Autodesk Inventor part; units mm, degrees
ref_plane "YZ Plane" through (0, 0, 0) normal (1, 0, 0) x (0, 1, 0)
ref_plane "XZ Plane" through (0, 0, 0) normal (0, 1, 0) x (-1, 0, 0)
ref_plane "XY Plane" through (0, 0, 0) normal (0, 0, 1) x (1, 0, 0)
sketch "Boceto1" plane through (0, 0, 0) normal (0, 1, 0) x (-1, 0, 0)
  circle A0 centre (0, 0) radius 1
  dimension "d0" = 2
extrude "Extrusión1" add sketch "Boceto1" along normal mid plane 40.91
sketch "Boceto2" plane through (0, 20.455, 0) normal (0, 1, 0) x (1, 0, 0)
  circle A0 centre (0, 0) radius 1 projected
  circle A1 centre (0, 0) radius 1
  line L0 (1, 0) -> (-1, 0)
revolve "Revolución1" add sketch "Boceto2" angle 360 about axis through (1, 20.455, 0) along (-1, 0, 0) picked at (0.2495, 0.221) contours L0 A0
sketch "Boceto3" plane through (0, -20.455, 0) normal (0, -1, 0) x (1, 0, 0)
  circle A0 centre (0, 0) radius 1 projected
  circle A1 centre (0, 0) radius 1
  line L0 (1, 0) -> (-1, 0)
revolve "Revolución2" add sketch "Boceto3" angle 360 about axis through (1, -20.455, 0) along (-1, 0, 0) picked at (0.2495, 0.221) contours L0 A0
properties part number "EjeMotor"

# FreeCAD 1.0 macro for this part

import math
import FreeCAD as App
import Part
import Sketcher
from FreeCAD import Vector

doc = App.newDocument("Part")
body = doc.addObject("PartDesign::Body", "Body")

# Sketch on XZ plane
sketch1 = doc.addObject("Sketcher::SketchObject", "Sketch")
body.addObject(sketch1)
sketch1.AttachmentSupport = (doc.XZ_Plane, [""])
sketch1.MapMode = "FlatFace"
sketch1.addGeometry(Part.Circle(Vector(0, 0, 0), Vector(0, 0, 1), 1), False)
sketch1.addConstraint(Sketcher.Constraint("Coincident", 0, 3, -1, 1))
sketch1.addConstraint(Sketcher.Constraint("Diameter", 0, 2.0))
pad1 = doc.addObject("PartDesign::Pad", "Pad")
body.addObject(pad1)
pad1.Profile = sketch1
pad1.Length = 40.91
pad1.Midplane = True

# Sketch on XZ plane
sketch2 = doc.addObject("Sketcher::SketchObject", "Sketch001")
body.addObject(sketch2)
sketch2.AttachmentSupport = (doc.XZ_Plane, [""])
sketch2.MapMode = "FlatFace"
sketch2.AttachmentOffset = App.Placement(Vector(0, 0, -20.455), App.Rotation())
sketch2.addGeometry(Part.LineSegment(Vector(-1, 0, 0), Vector(1, 0, 0)), False)
sketch2.addGeometry(Part.ArcOfCircle(Part.Circle(Vector(0, 0, 0), Vector(0, 0, 1), 1), math.radians(180), math.radians(360)), False)
sketch2.addConstraint(Sketcher.Constraint("Coincident", 0, 1, 1, 1))
sketch2.addConstraint(Sketcher.Constraint("Coincident", 1, 2, 0, 2))
sketch2.addConstraint(Sketcher.Constraint("Horizontal", 0))
sketch2.addConstraint(Sketcher.Constraint("Coincident", 1, 3, -1, 1))
sketch2.addConstraint(Sketcher.Constraint("PointOnObject", 0, 1, -1))
sketch2.addConstraint(Sketcher.Constraint("Radius", 1, 1.0))
revolution = doc.addObject("PartDesign::Revolution", "Revolution")
body.addObject(revolution)
revolution.Profile = sketch2
revolution.ReferenceAxis = (sketch2, ["H_Axis"])
revolution.Angle = 360

# Sketch on XZ plane
sketch3 = doc.addObject("Sketcher::SketchObject", "Sketch002")
body.addObject(sketch3)
sketch3.AttachmentSupport = (doc.XZ_Plane, [""])
sketch3.MapMode = "FlatFace"
sketch3.AttachmentOffset = App.Placement(Vector(0, 0, 20.455), App.Rotation())
sketch3.addGeometry(Part.LineSegment(Vector(-1, 0, 0), Vector(1, 0, 0)), False)
sketch3.addGeometry(Part.ArcOfCircle(Part.Circle(Vector(0, 0, 0), Vector(0, 0, 1), 1), math.radians(0), math.radians(180)), False)
sketch3.addConstraint(Sketcher.Constraint("Coincident", 0, 1, 1, 2))
sketch3.addConstraint(Sketcher.Constraint("Coincident", 1, 1, 0, 2))
sketch3.addConstraint(Sketcher.Constraint("Horizontal", 0))
sketch3.addConstraint(Sketcher.Constraint("Coincident", 1, 3, -1, 1))
sketch3.addConstraint(Sketcher.Constraint("PointOnObject", 0, 1, -1))
sketch3.addConstraint(Sketcher.Constraint("Radius", 1, 1.0))
revolution2 = doc.addObject("PartDesign::Revolution", "Revolution001")
body.addObject(revolution2)
revolution2.Profile = sketch3
revolution2.ReferenceAxis = (sketch3, ["H_Axis"])
revolution2.Angle = 360

doc.recompute()
